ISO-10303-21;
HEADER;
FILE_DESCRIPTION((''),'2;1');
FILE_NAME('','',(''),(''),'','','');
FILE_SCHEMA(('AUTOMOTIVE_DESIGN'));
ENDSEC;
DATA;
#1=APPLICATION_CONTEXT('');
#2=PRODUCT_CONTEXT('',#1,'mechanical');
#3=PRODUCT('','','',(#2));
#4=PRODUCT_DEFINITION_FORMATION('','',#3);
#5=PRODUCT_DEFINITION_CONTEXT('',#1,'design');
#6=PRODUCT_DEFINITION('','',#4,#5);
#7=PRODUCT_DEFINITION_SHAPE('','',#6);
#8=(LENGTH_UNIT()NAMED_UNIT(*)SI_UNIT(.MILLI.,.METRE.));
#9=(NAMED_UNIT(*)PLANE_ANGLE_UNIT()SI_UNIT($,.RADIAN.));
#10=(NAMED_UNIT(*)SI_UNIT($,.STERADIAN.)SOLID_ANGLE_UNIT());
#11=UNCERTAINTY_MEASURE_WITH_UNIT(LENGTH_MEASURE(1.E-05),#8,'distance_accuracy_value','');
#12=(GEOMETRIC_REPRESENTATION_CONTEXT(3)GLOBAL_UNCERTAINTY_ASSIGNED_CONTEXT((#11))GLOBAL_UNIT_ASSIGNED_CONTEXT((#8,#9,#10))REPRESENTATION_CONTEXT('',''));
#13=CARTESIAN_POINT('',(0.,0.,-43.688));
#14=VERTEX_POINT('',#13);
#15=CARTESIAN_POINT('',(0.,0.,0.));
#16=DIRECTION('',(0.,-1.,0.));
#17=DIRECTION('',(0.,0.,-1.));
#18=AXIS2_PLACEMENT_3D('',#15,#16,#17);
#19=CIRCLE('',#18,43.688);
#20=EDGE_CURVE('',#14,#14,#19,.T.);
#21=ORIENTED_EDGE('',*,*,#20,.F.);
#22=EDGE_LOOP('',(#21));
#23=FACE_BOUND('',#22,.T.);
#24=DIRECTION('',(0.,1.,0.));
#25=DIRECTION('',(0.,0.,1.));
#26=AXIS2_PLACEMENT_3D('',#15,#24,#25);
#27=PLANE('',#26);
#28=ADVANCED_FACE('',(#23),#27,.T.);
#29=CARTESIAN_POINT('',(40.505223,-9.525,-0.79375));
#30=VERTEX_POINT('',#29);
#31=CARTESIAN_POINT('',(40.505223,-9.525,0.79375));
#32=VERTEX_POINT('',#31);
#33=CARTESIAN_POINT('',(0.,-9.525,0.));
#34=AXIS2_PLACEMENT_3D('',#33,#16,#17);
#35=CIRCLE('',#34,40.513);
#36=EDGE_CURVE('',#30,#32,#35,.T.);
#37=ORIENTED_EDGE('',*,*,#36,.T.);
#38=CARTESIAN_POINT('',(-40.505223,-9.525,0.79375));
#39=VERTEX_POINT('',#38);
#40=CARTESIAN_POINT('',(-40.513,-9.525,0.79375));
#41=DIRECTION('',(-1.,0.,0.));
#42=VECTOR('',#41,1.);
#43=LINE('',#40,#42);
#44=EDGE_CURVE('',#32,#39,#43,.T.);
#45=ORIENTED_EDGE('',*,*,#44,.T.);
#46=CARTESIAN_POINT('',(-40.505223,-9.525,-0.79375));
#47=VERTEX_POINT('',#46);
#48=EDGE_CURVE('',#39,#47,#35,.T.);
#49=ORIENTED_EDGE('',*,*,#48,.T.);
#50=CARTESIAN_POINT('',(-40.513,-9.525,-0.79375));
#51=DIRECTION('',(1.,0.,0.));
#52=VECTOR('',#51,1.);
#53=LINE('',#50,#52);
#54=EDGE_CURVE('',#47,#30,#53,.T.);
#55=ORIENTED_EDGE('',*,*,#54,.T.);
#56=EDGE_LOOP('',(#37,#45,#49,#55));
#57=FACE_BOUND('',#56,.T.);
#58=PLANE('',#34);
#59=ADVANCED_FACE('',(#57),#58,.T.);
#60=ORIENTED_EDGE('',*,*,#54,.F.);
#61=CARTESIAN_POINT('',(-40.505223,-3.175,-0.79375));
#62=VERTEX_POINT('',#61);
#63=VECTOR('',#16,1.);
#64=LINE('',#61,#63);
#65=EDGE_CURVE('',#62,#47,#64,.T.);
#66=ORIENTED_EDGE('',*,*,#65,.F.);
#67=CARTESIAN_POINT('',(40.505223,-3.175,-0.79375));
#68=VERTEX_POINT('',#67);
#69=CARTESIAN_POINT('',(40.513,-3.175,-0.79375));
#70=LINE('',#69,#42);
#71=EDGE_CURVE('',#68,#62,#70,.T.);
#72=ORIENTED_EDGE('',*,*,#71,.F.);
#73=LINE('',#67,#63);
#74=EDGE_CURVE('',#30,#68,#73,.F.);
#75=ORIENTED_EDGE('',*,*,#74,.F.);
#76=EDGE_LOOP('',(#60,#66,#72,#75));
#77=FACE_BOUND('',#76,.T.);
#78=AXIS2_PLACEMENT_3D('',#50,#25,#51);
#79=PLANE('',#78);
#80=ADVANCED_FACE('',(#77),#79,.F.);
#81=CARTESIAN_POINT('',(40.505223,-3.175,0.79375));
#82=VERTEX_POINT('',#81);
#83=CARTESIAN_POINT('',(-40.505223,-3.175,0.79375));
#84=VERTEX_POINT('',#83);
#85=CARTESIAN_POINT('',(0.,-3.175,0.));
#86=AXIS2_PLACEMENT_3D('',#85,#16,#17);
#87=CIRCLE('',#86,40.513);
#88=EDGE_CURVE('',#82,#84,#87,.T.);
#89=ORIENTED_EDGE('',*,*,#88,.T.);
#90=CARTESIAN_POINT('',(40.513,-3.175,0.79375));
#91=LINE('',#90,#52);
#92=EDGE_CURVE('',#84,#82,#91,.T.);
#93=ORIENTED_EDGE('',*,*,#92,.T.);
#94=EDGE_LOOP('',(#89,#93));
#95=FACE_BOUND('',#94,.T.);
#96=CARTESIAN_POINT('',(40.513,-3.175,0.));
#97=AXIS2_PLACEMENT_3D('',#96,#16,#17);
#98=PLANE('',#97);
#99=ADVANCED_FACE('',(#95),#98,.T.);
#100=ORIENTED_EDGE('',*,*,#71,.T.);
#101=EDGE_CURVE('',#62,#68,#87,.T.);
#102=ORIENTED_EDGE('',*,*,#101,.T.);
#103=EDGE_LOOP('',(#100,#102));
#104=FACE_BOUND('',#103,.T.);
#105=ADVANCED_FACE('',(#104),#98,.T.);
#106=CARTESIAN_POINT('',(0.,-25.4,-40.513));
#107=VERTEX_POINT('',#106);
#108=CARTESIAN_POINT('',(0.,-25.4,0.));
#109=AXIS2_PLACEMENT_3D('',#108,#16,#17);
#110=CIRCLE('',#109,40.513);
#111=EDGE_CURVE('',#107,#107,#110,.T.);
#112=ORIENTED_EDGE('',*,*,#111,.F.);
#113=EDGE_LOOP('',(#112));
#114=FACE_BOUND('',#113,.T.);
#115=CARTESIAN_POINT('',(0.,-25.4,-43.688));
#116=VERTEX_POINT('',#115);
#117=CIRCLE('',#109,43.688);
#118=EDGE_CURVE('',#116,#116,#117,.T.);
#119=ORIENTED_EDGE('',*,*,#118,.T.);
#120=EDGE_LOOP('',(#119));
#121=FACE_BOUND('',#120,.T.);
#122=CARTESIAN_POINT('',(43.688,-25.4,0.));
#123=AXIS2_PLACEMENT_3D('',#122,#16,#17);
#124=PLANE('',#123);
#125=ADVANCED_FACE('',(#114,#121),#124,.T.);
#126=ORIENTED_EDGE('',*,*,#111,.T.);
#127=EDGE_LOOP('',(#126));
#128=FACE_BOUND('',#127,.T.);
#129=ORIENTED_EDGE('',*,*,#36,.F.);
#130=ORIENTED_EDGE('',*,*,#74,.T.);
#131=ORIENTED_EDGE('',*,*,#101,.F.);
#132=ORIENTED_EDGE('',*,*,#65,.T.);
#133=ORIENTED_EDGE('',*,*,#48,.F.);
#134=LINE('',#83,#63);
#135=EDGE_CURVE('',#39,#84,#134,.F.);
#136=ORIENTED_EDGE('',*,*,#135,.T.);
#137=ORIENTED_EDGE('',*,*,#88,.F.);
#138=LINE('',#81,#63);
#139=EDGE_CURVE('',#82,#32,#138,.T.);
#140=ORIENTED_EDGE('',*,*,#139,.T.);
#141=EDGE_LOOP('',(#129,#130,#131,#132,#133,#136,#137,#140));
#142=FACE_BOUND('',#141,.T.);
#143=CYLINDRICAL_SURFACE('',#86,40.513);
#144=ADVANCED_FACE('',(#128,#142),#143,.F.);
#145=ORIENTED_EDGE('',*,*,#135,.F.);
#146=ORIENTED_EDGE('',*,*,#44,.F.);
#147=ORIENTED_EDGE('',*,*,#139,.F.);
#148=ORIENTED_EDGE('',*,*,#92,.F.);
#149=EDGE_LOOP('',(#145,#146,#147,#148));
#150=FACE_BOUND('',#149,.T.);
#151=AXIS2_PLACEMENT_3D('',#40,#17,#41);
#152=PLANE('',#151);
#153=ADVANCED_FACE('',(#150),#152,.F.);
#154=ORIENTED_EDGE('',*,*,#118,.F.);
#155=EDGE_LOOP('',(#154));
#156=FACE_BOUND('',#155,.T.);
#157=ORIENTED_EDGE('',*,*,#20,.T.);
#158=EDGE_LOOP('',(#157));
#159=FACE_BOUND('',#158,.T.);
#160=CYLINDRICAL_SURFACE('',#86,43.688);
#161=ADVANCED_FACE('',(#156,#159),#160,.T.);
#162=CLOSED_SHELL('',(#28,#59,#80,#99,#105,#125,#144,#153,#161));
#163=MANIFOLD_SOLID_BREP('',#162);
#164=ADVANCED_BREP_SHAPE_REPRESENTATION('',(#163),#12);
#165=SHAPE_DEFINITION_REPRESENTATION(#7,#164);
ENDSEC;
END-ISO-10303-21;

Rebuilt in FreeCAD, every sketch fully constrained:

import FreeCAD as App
import Part
import Sketcher
from FreeCAD import Vector
Q = App.Units.Quantity

doc = App.newDocument("Part")
body = doc.addObject("PartDesign::Body", "Body")

sketch1 = doc.addObject("Sketcher::SketchObject", "Sketch")
body.addObject(sketch1)
sketch1.AttachmentSupport = (doc.XY_Plane, [""])
sketch1.MapMode = "FlatFace"
sketch1.addGeometry([
    Part.LineSegment(Vector(43.688, 0, 0), Vector(0, 0, 0)),
    Part.LineSegment(Vector(0, 0, 0), Vector(0, -3.175, 0)),
    Part.LineSegment(Vector(0, -3.175, 0), Vector(40.513, -3.175, 0)),
    Part.LineSegment(Vector(40.513, -3.175, 0), Vector(40.513, -25.4, 0)),
    Part.LineSegment(Vector(40.513, -25.4, 0), Vector(43.688, -25.4, 0)),
    Part.LineSegment(Vector(43.688, -25.4, 0), Vector(43.688, 0, 0)),
], False)
sketch1.addConstraint([
    Sketcher.Constraint("Coincident", 0, 2, 1, 1),
    Sketcher.Constraint("Coincident", 1, 2, 2, 1),
    Sketcher.Constraint("Coincident", 2, 2, 3, 1),
    Sketcher.Constraint("Coincident", 3, 2, 4, 1),
    Sketcher.Constraint("Coincident", 4, 2, 5, 1),
    Sketcher.Constraint("Coincident", 5, 2, 0, 1),
    Sketcher.Constraint("Horizontal", 0),
    Sketcher.Constraint("Vertical", 1),
    Sketcher.Constraint("Horizontal", 2),
    Sketcher.Constraint("Vertical", 3),
    Sketcher.Constraint("Horizontal", 4),
    Sketcher.Constraint("Vertical", 5),
    Sketcher.Constraint("Coincident", 0, 2, -1, 1),
    Sketcher.Constraint("Equal", 4, 1),
    Sketcher.Constraint("DistanceY", 5, 1, 5, 2, Q("1 in")),
    Sketcher.Constraint("DistanceX", 0, 2, 0, 1, Q("1.72 in")),
    Sketcher.Constraint("DistanceX", 2, 1, 2, 2, Q("1.595 in")),
])
revolution = doc.addObject("PartDesign::Revolution", "Revolution")
body.addObject(revolution)
revolution.Profile = sketch1
revolution.ReferenceAxis = (sketch1, ["V_Axis"])
revolution.Angle = 360

sketch2 = doc.addObject("Sketcher::SketchObject", "Sketch001")
body.addObject(sketch2)
sketch2.AttachmentSupport = (doc.XZ_Plane, [""])
sketch2.MapMode = "FlatFace"
sketch2.AttachmentOffset = App.Placement(Vector(0, 0, 0.125 * 25.4), App.Rotation())
sketch2.addGeometry([
    Part.LineSegment(Vector(-40.513, 0.79375, 0), Vector(-40.513, -0.79375, 0)),
    Part.LineSegment(Vector(-40.513, -0.79375, 0), Vector(40.513, -0.79375, 0)),
    Part.LineSegment(Vector(40.513, -0.79375, 0), Vector(40.513, 0.79375, 0)),
    Part.LineSegment(Vector(40.513, 0.79375, 0), Vector(-40.513, 0.79375, 0)),
], False)
sketch2.addConstraint([
    Sketcher.Constraint("Coincident", 0, 2, 1, 1),
    Sketcher.Constraint("Coincident", 1, 2, 2, 1),
    Sketcher.Constraint("Coincident", 2, 2, 3, 1),
    Sketcher.Constraint("Coincident", 3, 2, 0, 1),
    Sketcher.Constraint("Vertical", 0),
    Sketcher.Constraint("Horizontal", 1),
    Sketcher.Constraint("Vertical", 2),
    Sketcher.Constraint("Horizontal", 3),
    Sketcher.Constraint("Symmetric", 0, 2, 2, 2, -1, 1),
    Sketcher.Constraint("DistanceX", 1, 1, 1, 2, Q("3.19 in")),
    Sketcher.Constraint("DistanceY", 0, 2, 0, 1, Q("0.0625 in")),
])
pad1 = doc.addObject("PartDesign::Pad", "Pad")
body.addObject(pad1)
pad1.Profile = sketch2
pad1.Length = Q("0.25 in")

doc.recompute()
